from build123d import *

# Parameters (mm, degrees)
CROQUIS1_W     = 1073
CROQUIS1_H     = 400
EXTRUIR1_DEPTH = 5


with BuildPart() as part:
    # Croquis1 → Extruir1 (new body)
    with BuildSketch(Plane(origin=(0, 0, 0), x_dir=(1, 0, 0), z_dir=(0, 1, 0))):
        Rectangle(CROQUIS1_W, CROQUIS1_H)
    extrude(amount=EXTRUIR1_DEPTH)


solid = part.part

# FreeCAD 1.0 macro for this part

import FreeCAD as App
import Part
import Sketcher

V = App.Vector

doc = App.newDocument("Part")
body = doc.addObject("PartDesign::Body", "Body")

sketch1 = doc.addObject("Sketcher::SketchObject", "Sketch")
body.addObject(sketch1)
sketch1.AttachmentSupport = (doc.XZ_Plane, [""])
sketch1.MapMode = "FlatFace"
sketch1.addGeometry([
    Part.LineSegment(V(-536, -200, 0), V(-536, 200, 0)),
    Part.LineSegment(V(-536, 200, 0), V(536, 200, 0)),
    Part.LineSegment(V(536, 200, 0), V(536, -200, 0)),
    Part.LineSegment(V(536, -200, 0), V(-536, -200, 0)),
], False)
sketch1.addConstraint([
    Sketcher.Constraint("Coincident", 0, 2, 1, 1),
    Sketcher.Constraint("Coincident", 1, 2, 2, 1),
    Sketcher.Constraint("Coincident", 2, 2, 3, 1),
    Sketcher.Constraint("Coincident", 3, 2, 0, 1),
    Sketcher.Constraint("Vertical", 0),
    Sketcher.Constraint("Horizontal", 1),
    Sketcher.Constraint("Vertical", 2),
    Sketcher.Constraint("Horizontal", 3),
    Sketcher.Constraint("Symmetric", 0, 2, 2, 2, -1, 1),
    Sketcher.Constraint("DistanceX", 1, 1, 1, 2, 1073.0),
    Sketcher.Constraint("DistanceY", 0, 1, 0, 2, 400.0),
])
pad1 = doc.addObject("PartDesign::Pad", "Pad")
body.addObject(pad1)
pad1.Profile = sketch1
pad1.Length = 5
pad1.Reversed = True

doc.recompute()
